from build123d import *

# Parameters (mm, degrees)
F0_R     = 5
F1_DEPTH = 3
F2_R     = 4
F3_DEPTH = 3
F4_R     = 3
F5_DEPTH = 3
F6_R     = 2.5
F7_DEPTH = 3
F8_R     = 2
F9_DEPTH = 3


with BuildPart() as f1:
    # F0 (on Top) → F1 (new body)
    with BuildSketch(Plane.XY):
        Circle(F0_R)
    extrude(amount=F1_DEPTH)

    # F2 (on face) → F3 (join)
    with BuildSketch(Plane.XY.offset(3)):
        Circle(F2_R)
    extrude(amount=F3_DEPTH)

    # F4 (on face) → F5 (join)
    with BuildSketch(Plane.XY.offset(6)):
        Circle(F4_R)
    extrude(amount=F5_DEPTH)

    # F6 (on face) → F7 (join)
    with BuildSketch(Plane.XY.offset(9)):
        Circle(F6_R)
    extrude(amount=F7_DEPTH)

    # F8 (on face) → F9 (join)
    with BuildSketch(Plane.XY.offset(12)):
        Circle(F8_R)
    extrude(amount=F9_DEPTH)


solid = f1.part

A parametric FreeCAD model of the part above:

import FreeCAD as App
import Part
import Sketcher

V = App.Vector

doc = App.newDocument("Part")
params = doc.addObject("Spreadsheet::Sheet", "Params")
for row, (alias, value) in enumerate([
    ("sketch1_diameter", "10 mm"),
    ("pad1_length", "3 mm"),
    ("sketch2_diameter", "8 mm"),
    ("pad2_length", "3 mm"),
    ("sketch3_diameter", "6 mm"),
    ("pad3_length", "3 mm"),
    ("sketch4_diameter", "5 mm"),
    ("pad4_length", "3 mm"),
    ("sketch5_diameter", "4 mm"),
    ("pad5_length", "3 mm"),
], start=1):
    params.set(f"A{row}", alias)
    params.set(f"B{row}", "=" + value)
    params.setAlias(f"B{row}", alias)

body = doc.addObject("PartDesign::Body", "Body")

sketch1 = body.newObject("Sketcher::SketchObject", "Sketch")
sketch1.AttachmentSupport = (doc.getObject("XY_Plane"), [""])
sketch1.MapMode = "FlatFace"
sketch1.addGeometry(Part.Circle(V(0, 0, 0), V(0, 0, 1), 5), False)
sketch1.addConstraint([
    Sketcher.Constraint("Coincident", 0, 3, -1, 1),
    Sketcher.Constraint("Diameter", 0, 10.0),
])
sketch1.setExpression("Constraints[1]", "Params.sketch1_diameter")
pad1 = body.newObject("PartDesign::Pad", "Pad")
pad1.Profile = sketch1
pad1.setExpression("Length", "Params.pad1_length")

sketch2 = body.newObject("Sketcher::SketchObject", "Sketch001")
sketch2.AttachmentSupport = (doc.getObject("XY_Plane"), [""])
sketch2.MapMode = "FlatFace"
sketch2.AttachmentOffset = App.Placement(V(0, 0, 3), App.Rotation())
sketch2.addGeometry(Part.Circle(V(0, 0, 0), V(0, 0, 1), 4), False)
sketch2.addConstraint([
    Sketcher.Constraint("Coincident", 0, 3, -1, 1),
    Sketcher.Constraint("Diameter", 0, 8.0),
])
sketch2.setExpression("Constraints[1]", "Params.sketch2_diameter")
pad2 = body.newObject("PartDesign::Pad", "Pad001")
pad2.Profile = sketch2
pad2.setExpression("Length", "Params.pad2_length")

sketch3 = body.newObject("Sketcher::SketchObject", "Sketch002")
sketch3.AttachmentSupport = (doc.getObject("XY_Plane"), [""])
sketch3.MapMode = "FlatFace"
sketch3.AttachmentOffset = App.Placement(V(0, 0, 6), App.Rotation())
sketch3.addGeometry(Part.Circle(V(0, 0, 0), V(0, 0, 1), 3), False)
sketch3.addConstraint([
    Sketcher.Constraint("Coincident", 0, 3, -1, 1),
    Sketcher.Constraint("Diameter", 0, 6.0),
])
sketch3.setExpression("Constraints[1]", "Params.sketch3_diameter")
pad3 = body.newObject("PartDesign::Pad", "Pad002")
pad3.Profile = sketch3
pad3.setExpression("Length", "Params.pad3_length")

sketch4 = body.newObject("Sketcher::SketchObject", "Sketch003")
sketch4.AttachmentSupport = (doc.getObject("XY_Plane"), [""])
sketch4.MapMode = "FlatFace"
sketch4.AttachmentOffset = App.Placement(V(0, 0, 9), App.Rotation())
sketch4.addGeometry(Part.Circle(V(0, 0, 0), V(0, 0, 1), 2.5), False)
sketch4.addConstraint([
    Sketcher.Constraint("Coincident", 0, 3, -1, 1),
    Sketcher.Constraint("Diameter", 0, 5.0),
])
sketch4.setExpression("Constraints[1]", "Params.sketch4_diameter")
pad4 = body.newObject("PartDesign::Pad", "Pad003")
pad4.Profile = sketch4
pad4.setExpression("Length", "Params.pad4_length")

sketch5 = body.newObject("Sketcher::SketchObject", "Sketch004")
sketch5.AttachmentSupport = (doc.getObject("XY_Plane"), [""])
sketch5.MapMode = "FlatFace"
sketch5.AttachmentOffset = App.Placement(V(0, 0, 12), App.Rotation())
sketch5.addGeometry(Part.Circle(V(0, 0, 0), V(0, 0, 1), 2), False)
sketch5.addConstraint([
    Sketcher.Constraint("Coincident", 0, 3, -1, 1),
    Sketcher.Constraint("Diameter", 0, 4.0),
])
sketch5.setExpression("Constraints[1]", "Params.sketch5_diameter")
pad5 = body.newObject("PartDesign::Pad", "Pad004")
pad5.Profile = sketch5
pad5.setExpression("Length", "Params.pad5_length")

doc.recompute()
